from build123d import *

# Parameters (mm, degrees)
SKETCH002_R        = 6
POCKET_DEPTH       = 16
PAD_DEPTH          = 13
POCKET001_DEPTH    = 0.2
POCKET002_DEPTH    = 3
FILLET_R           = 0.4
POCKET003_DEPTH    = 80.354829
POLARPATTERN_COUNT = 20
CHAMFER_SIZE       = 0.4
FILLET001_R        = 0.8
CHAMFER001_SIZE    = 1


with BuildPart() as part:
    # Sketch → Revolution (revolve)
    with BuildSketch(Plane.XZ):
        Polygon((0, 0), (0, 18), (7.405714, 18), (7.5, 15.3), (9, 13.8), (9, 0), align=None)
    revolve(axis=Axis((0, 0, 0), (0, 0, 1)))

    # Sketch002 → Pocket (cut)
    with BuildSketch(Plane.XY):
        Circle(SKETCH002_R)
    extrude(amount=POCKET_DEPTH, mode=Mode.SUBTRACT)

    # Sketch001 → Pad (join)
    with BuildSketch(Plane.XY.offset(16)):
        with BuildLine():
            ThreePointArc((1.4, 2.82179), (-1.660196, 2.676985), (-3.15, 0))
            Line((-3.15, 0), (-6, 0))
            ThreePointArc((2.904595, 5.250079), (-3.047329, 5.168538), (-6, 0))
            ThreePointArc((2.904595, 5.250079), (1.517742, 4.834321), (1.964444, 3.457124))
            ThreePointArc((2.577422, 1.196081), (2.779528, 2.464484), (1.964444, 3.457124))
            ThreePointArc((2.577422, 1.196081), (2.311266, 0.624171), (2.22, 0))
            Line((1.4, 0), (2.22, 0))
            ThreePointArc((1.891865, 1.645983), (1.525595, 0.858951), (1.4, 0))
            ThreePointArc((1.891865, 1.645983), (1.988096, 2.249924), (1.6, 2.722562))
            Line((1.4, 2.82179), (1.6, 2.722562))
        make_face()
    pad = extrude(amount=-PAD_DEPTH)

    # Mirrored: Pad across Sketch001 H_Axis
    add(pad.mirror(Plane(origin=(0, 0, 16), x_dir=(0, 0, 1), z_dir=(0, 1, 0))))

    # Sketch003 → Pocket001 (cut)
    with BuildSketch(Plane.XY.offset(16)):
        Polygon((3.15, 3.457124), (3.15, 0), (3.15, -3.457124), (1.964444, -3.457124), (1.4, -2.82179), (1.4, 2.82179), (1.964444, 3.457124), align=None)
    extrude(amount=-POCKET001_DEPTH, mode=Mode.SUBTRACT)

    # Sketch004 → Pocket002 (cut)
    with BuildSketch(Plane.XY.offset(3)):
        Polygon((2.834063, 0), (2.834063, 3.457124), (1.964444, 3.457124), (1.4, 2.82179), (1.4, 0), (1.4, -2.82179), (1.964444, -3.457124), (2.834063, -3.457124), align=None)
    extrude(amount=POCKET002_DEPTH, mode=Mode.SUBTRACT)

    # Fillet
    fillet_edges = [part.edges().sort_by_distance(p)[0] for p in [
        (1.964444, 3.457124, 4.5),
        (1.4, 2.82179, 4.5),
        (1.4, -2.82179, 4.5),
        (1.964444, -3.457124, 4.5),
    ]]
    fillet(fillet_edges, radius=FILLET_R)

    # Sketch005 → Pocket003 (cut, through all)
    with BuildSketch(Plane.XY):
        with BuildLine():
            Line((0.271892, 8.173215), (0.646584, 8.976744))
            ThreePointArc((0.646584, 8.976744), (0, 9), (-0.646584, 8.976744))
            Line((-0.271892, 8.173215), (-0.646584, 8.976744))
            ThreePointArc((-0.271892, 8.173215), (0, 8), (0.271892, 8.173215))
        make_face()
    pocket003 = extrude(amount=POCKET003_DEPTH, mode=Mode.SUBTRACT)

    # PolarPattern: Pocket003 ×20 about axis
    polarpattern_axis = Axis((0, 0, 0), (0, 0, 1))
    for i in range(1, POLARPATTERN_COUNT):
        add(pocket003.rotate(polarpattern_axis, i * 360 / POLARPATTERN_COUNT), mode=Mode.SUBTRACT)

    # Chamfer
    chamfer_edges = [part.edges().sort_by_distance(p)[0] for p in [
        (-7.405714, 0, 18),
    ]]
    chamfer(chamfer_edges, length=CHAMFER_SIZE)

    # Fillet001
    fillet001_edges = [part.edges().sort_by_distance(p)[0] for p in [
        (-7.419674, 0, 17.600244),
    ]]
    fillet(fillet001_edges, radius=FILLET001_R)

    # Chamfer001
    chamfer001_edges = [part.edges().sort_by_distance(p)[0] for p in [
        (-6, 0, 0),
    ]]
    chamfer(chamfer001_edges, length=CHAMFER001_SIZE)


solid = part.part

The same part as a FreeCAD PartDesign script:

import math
import FreeCAD as App
import Part
import Sketcher
from FreeCAD import Vector
Q = App.Units.Quantity


def edges_at(feature, points):
    """Names of the edges that pass closest to the given points."""
    edges = feature.Shape.Edges
    near = lambda p: min(range(len(edges)), key=lambda i: edges[i].distToShape(Part.Vertex(*p))[0])
    return sorted({f"Edge{near(p) + 1}" for p in points})

doc = App.newDocument("Part")
body = doc.addObject("PartDesign::Body", "Body")

sketch1 = body.newObject("Sketcher::SketchObject", "Sketch")
sketch1.AttachmentSupport = (doc.getObject("XZ_Plane"), [""])
sketch1.MapMode = "FlatFace"
sketch1.addGeometry(Part.LineSegment(Vector(0, 18, 0), Vector(0, 0, 0)), False)
sketch1.addGeometry(Part.LineSegment(Vector(0, 0, 0), Vector(9, 0, 0)), False)
sketch1.addGeometry(Part.LineSegment(Vector(9, 0, 0), Vector(9, 13.8, 0)), False)
sketch1.addGeometry(Part.LineSegment(Vector(9, 13.8, 0), Vector(7.5, 15.3, 0)), False)
sketch1.addGeometry(Part.LineSegment(Vector(7.5, 15.3, 0), Vector(7.4, 18, 0)), False)
sketch1.addGeometry(Part.LineSegment(Vector(7.4, 18, 0), Vector(0, 18, 0)), False)
sketch1.addConstraint(Sketcher.Constraint("Coincident", 0, 2, 1, 1))
sketch1.addConstraint(Sketcher.Constraint("Coincident", 1, 2, 2, 1))
sketch1.addConstraint(Sketcher.Constraint("Coincident", 2, 2, 3, 1))
sketch1.addConstraint(Sketcher.Constraint("Coincident", 3, 2, 4, 1))
sketch1.addConstraint(Sketcher.Constraint("Coincident", 4, 2, 5, 1))
sketch1.addConstraint(Sketcher.Constraint("Coincident", 5, 2, 0, 1))
sketch1.addConstraint(Sketcher.Constraint("Vertical", 0))
sketch1.addConstraint(Sketcher.Constraint("Horizontal", 1))
sketch1.addConstraint(Sketcher.Constraint("Vertical", 2))
sketch1.addConstraint(Sketcher.Constraint("Horizontal", 5))
sketch1.addConstraint(Sketcher.Constraint("Coincident", 0, 2, -1, 1))
sketch1.addConstraint(Sketcher.Constraint("DistanceX", 1, 1, 1, 2, Q("9 mm")))
sketch1.addConstraint(Sketcher.Constraint("DistanceY", 0, 2, 0, 1, Q("18 mm")))
sketch1.addConstraint(Sketcher.Constraint("Angle", 3, Q("135 deg")))
sketch1.addConstraint(Sketcher.Constraint("Angle", 4, Q("91.999998 deg")))
sketch1.addConstraint(Sketcher.Constraint("DistanceY", 2, 1, 2, 2, Q("13.8 mm")))
sketch1.addConstraint(Sketcher.Constraint("DistanceX", -1, 1, 3, 2, Q("7.5 mm")))
revolution = body.newObject("PartDesign::Revolution", "Revolution")
revolution.Profile = sketch1
revolution.ReferenceAxis = (sketch1, ["V_Axis"])
revolution.Angle = 360

sketch2 = body.newObject("Sketcher::SketchObject", "Sketch001")
sketch2.AttachmentSupport = (doc.getObject("XY_Plane"), [""])
sketch2.MapMode = "FlatFace"
sketch2.addGeometry(Part.Circle(Vector(0, 0, 0), Vector(0, 0, 1), 6), False)
sketch2.addConstraint(Sketcher.Constraint("Coincident", 0, 3, -1, 1))
sketch2.addConstraint(Sketcher.Constraint("Diameter", 0, Q("12 mm")))
pocket1 = body.newObject("PartDesign::Pocket", "Pocket")
pocket1.Profile = sketch2
pocket1.Length = 16
pocket1.Reversed = True

sketch3 = body.newObject("Sketcher::SketchObject", "Sketch002")
sketch3.AttachmentSupport = (doc.getObject("XY_Plane"), [""])
sketch3.MapMode = "FlatFace"
sketch3.AttachmentOffset = App.Placement(Vector(0, 0, 16), App.Rotation())
sketch3.addGeometry(Part.ArcOfCircle(Part.Circle(Vector(0, 0, 0), Vector(0, 0, 1), 3.15), math.radians(64), math.radians(180)), False)
sketch3.addGeometry(Part.LineSegment(Vector(1.4, 2.82, 0), Vector(1.6, 2.72, 0)), False)
sketch3.addGeometry(Part.ArcOfCircle(Part.Circle(Vector(1.27, 2.05, 0), Vector(0, 0, 1), 0.75), math.radians(-33), math.radians(64)), False)
sketch3.addGeometry(Part.ArcOfCircle(Part.Circle(Vector(4.4, 0, 0), Vector(0, 0, 1), 3), math.radians(147), math.radians(180)), False)
sketch3.addGeometry(Part.LineSegment(Vector(1.4, 0, 0), Vector(2.22, 0, 0)), False)
sketch3.addGeometry(Part.ArcOfCircle(Part.Circle(Vector(4.4, 0, 0), Vector(0, 0, 1), 2.18), math.radians(147), math.radians(180)), False)
sketch3.addGeometry(Part.ArcOfCircle(Part.Circle(Vector(1.27, 2.05, 0), Vector(0, 0, 1), 1.57), math.radians(-33), math.radians(64)), False)
sketch3.addGeometry(Part.ArcOfCircle(Part.Circle(Vector(2.41, 4.36, 0), Vector(0, 0, 1), 1.01), math.radians(61), math.radians(244)), False)
sketch3.addGeometry(Part.ArcOfCircle(Part.Circle(Vector(0, 0, 0), Vector(0, 0, 1), 6), math.radians(61), math.radians(180)), False)
sketch3.addGeometry(Part.LineSegment(Vector(-6, 0, 0), Vector(-3.15, 0, 0)), False)
sketch3.addConstraint(Sketcher.Constraint("Tangent", 0, 1, 1, 1))
sketch3.addConstraint(Sketcher.Constraint("Tangent", 1, 2, 2, 2))
sketch3.addConstraint(Sketcher.Constraint("Tangent", 2, 1, 3, 1))
sketch3.addConstraint(Sketcher.Constraint("Coincident", 3, 2, 4, 1))
sketch3.addConstraint(Sketcher.Constraint("Coincident", 4, 2, 5, 2))
sketch3.addConstraint(Sketcher.Constraint("Tangent", 5, 1, 6, 1))
sketch3.addConstraint(Sketcher.Constraint("Tangent", 6, 2, 7, 2))
sketch3.addConstraint(Sketcher.Constraint("Tangent", 7, 1, 8, 1))
sketch3.addConstraint(Sketcher.Constraint("Coincident", 8, 2, 9, 1))
sketch3.addConstraint(Sketcher.Constraint("Coincident", 9, 2, 0, 2))
sketch3.addConstraint(Sketcher.Constraint("Horizontal", 4))
sketch3.addConstraint(Sketcher.Constraint("Horizontal", 9))
sketch3.addConstraint(Sketcher.Constraint("Coincident", 0, 3, -1, 1))
sketch3.addConstraint(Sketcher.Constraint("Coincident", 8, 3, -1, 1))
sketch3.addConstraint(Sketcher.Constraint("Coincident", 5, 3, 3, 3))
sketch3.addConstraint(Sketcher.Constraint("Coincident", 6, 3, 2, 3))
sketch3.addConstraint(Sketcher.Constraint("PointOnObject", 3, 3, -1))
sketch3.addConstraint(Sketcher.Constraint("PointOnObject", 3, 2, -1))
sketch3.addConstraint(Sketcher.Constraint("PointOnObject", 8, 2, -1))
sketch3.addConstraint(Sketcher.Constraint("Vertical", 0, 1, 3, 2))
sketch3.addConstraint(Sketcher.Constraint("Radius", 3, Q("2.999999 mm")))
sketch3.addConstraint(Sketcher.Constraint("Radius", 8, Q("6 mm")))
sketch3.addConstraint(Sketcher.Constraint("Radius", 0, Q("3.15 mm")))
sketch3.addConstraint(Sketcher.Constraint("DistanceX", 4, 1, 4, 2, Q("0.82 mm")))
sketch3.addConstraint(Sketcher.Constraint("DistanceX", -1, 1, 3, 3, Q("4.399999 mm")))
sketch3.addConstraint(Sketcher.Constraint("DistanceX", -1, 1, 1, 2, Q("1.6 mm")))
sketch3.addConstraint(Sketcher.Constraint("Radius", 7, Q("1.0125 mm")))
pad1 = body.newObject("PartDesign::Pad", "Pad")
pad1.Profile = sketch3
pad1.Length = 13
pad1.Reversed = True
doc.recompute()

mirrored = body.newObject("PartDesign::Mirrored", "Mirrored")
mirrored.Originals = [pad1]
mirrored.MirrorPlane = (doc.getObject("XZ_Plane"), [""])
body.Tip = mirrored

sketch4 = body.newObject("Sketcher::SketchObject", "Sketch003")
sketch4.AttachmentSupport = (doc.getObject("XY_Plane"), [""])
sketch4.MapMode = "FlatFace"
sketch4.AttachmentOffset = App.Placement(Vector(0, 0, 16), App.Rotation())
sketch4.addGeometry(Part.LineSegment(Vector(3.1, -3.5, 0), Vector(3.1, 3.5, 0)), False)
sketch4.addGeometry(Part.LineSegment(Vector(3.1, 3.5, 0), Vector(2, 3.5, 0)), False)
sketch4.addGeometry(Part.LineSegment(Vector(2, 3.5, 0), Vector(1.4, 2.8, 0)), False)
sketch4.addGeometry(Part.LineSegment(Vector(1.4, 2.8, 0), Vector(1.4, -2.8, 0)), False)
sketch4.addGeometry(Part.LineSegment(Vector(1.4, -2.8, 0), Vector(2, -3.5, 0)), False)
sketch4.addGeometry(Part.LineSegment(Vector(2, -3.5, 0), Vector(3.1, -3.5, 0)), False)
sketch4.addConstraint(Sketcher.Constraint("Coincident", 0, 2, 1, 1))
sketch4.addConstraint(Sketcher.Constraint("Coincident", 1, 2, 2, 1))
sketch4.addConstraint(Sketcher.Constraint("Coincident", 2, 2, 3, 1))
sketch4.addConstraint(Sketcher.Constraint("Coincident", 3, 2, 4, 1))
sketch4.addConstraint(Sketcher.Constraint("Coincident", 4, 2, 5, 1))
sketch4.addConstraint(Sketcher.Constraint("Coincident", 5, 2, 0, 1))
sketch4.addConstraint(Sketcher.Constraint("Vertical", 0))
sketch4.addConstraint(Sketcher.Constraint("Horizontal", 1))
sketch4.addConstraint(Sketcher.Constraint("Vertical", 3))
sketch4.addConstraint(Sketcher.Constraint("Horizontal", 5))
sketch4.addConstraint(Sketcher.Constraint("Symmetric", 1, 2, 4, 2, -1))
sketch4.addConstraint(Sketcher.Constraint("Equal", 2, 4))
sketch4.addConstraint(Sketcher.Constraint("DistanceX", -1, 1, 2, 2, Q("1.4 mm")))
sketch4.addConstraint(Sketcher.Constraint("DistanceX", -1, 1, 0, 2, Q("3.15 mm")))
sketch4.addConstraint(Sketcher.Constraint("DistanceY", 3, 2, 3, 1, Q("5.64358 mm")))
sketch4.addConstraint(Sketcher.Constraint("Distance", 2, Q("0.849851 mm")))
sketch4.addConstraint(Sketcher.Constraint("DistanceX", 1, 2, 1, 1, Q("1.185556 mm")))
pocket2 = body.newObject("PartDesign::Pocket", "Pocket001")
pocket2.Profile = sketch4
pocket2.Length = 0.2

sketch5 = body.newObject("Sketcher::SketchObject", "Sketch004")
sketch5.AttachmentSupport = (doc.getObject("XY_Plane"), [""])
sketch5.MapMode = "FlatFace"
sketch5.AttachmentOffset = App.Placement(Vector(0, 0, 3), App.Rotation())
sketch5.addGeometry(Part.LineSegment(Vector(2.8, 3.5, 0), Vector(2, 3.5, 0)), False)
sketch5.addGeometry(Part.LineSegment(Vector(2, 3.5, 0), Vector(1.4, 2.8, 0)), False)
sketch5.addGeometry(Part.LineSegment(Vector(1.4, 2.8, 0), Vector(1.4, -2.8, 0)), False)
sketch5.addGeometry(Part.LineSegment(Vector(1.4, -2.8, 0), Vector(2, -3.5, 0)), False)
sketch5.addGeometry(Part.LineSegment(Vector(2, -3.5, 0), Vector(2.8, -3.5, 0)), False)
sketch5.addGeometry(Part.LineSegment(Vector(2.8, -3.5, 0), Vector(2.8, 3.5, 0)), False)
sketch5.addConstraint(Sketcher.Constraint("Coincident", 0, 2, 1, 1))
sketch5.addConstraint(Sketcher.Constraint("Coincident", 1, 2, 2, 1))
sketch5.addConstraint(Sketcher.Constraint("Coincident", 2, 2, 3, 1))
sketch5.addConstraint(Sketcher.Constraint("Coincident", 3, 2, 4, 1))
sketch5.addConstraint(Sketcher.Constraint("Coincident", 4, 2, 5, 1))
sketch5.addConstraint(Sketcher.Constraint("Coincident", 5, 2, 0, 1))
sketch5.addConstraint(Sketcher.Constraint("Horizontal", 0))
sketch5.addConstraint(Sketcher.Constraint("Vertical", 2))
sketch5.addConstraint(Sketcher.Constraint("Horizontal", 4))
sketch5.addConstraint(Sketcher.Constraint("Vertical", 5))
sketch5.addConstraint(Sketcher.Constraint("Symmetric", 0, 2, 3, 2, -1))
sketch5.addConstraint(Sketcher.Constraint("Equal", 1, 3))
sketch5.addConstraint(Sketcher.Constraint("DistanceX", -1, 1, 1, 2, Q("1.4 mm")))
sketch5.addConstraint(Sketcher.Constraint("DistanceX", 0, 2, 0, 1, Q("0.869619 mm")))
sketch5.addConstraint(Sketcher.Constraint("DistanceY", 2, 2, 2, 1, Q("5.64358 mm")))
sketch5.addConstraint(Sketcher.Constraint("Distance", 1, Q("0.849851 mm")))
sketch5.addConstraint(Sketcher.Constraint("DistanceY", 5, 1, 5, 2, Q("6.914248 mm")))
pocket3 = body.newObject("PartDesign::Pocket", "Pocket002")
pocket3.Profile = sketch5
pocket3.Length = 3
pocket3.Reversed = True
doc.recompute()

fillet = body.newObject("PartDesign::Fillet", "Fillet")
fillet.Base = (pocket3, edges_at(pocket3, [
    (1.964, 3.457, 4.5),
    (1.4, 2.822, 4.5),
    (1.4, -2.822, 4.5),
    (1.964, -3.457, 4.5),
]))
fillet.Radius = 0.4

sketch6 = body.newObject("Sketcher::SketchObject", "Sketch005")
sketch6.AttachmentSupport = (doc.getObject("XY_Plane"), [""])
sketch6.MapMode = "FlatFace"
sketch6.addGeometry(Part.LineSegment(Vector(0.27, 8.17, 0), Vector(0.65, 8.98, 0)), False)
sketch6.addGeometry(Part.ArcOfCircle(Part.Circle(Vector(0, 0, 0), Vector(0, 0, 1), 9), math.radians(85.88), math.radians(94.12)), False)
sketch6.addGeometry(Part.LineSegment(Vector(-0.65, 8.98, 0), Vector(-0.27, 8.17, 0)), False)
sketch6.addGeometry(Part.ArcOfCircle(Part.Circle(Vector(0, 8.3, 0), Vector(0, 0, 1), 0.3), math.radians(-155), math.radians(-25)), False)
sketch6.addConstraint(Sketcher.Constraint("Coincident", 0, 2, 1, 1))
sketch6.addConstraint(Sketcher.Constraint("Coincident", 1, 2, 2, 1))
sketch6.addConstraint(Sketcher.Constraint("Coincident", 2, 2, 3, 1))
sketch6.addConstraint(Sketcher.Constraint("Coincident", 3, 2, 0, 1))
sketch6.addConstraint(Sketcher.Constraint("Symmetric", 0, 2, 1, 2, -2))
sketch6.addConstraint(Sketcher.Constraint("Symmetric", 2, 2, 3, 2, -2))
sketch6.addConstraint(Sketcher.Constraint("Radius", 3, Q("0.299999 mm")))
sketch6.addConstraint(Sketcher.Constraint("Angle", 0, Q("64.999984 deg")))
sketch6.addConstraint(Sketcher.Constraint("DistanceY", -1, 1, 3, 3, Q("8.299999 mm")))
sketch6.addConstraint(Sketcher.Constraint("Radius", 1, Q("9.00008 mm")))
sketch6.addConstraint(Sketcher.Constraint("DistanceX", -1, 1, 3, 2, Q("0.271892 mm")))
sketch6.addConstraint(Sketcher.Constraint("DistanceY", 1, 3, 3, 3, Q("8.300079 mm")))
pocket4 = body.newObject("PartDesign::Pocket", "Pocket003")
pocket4.Profile = sketch6
pocket4.Type = "ThroughAll"
pocket4.Reversed = True
doc.recompute()

polarpattern = body.newObject("PartDesign::PolarPattern", "PolarPattern")
polarpattern.Originals = [pocket4]
polarpattern.Axis = (doc.getObject("Z_Axis"), [""])
polarpattern.Angle = 360
polarpattern.Occurrences = 20
body.Tip = polarpattern
doc.recompute()

chamfer = body.newObject("PartDesign::Chamfer", "Chamfer")
chamfer.Base = (polarpattern, edges_at(polarpattern, [(-7.406, 0, 18)]))
chamfer.Size = 0.4
doc.recompute()

fillet2 = body.newObject("PartDesign::Fillet", "Fillet001")
fillet2.Base = (chamfer, edges_at(chamfer, [(-7.42, 0, 17.6)]))
fillet2.Radius = 0.8
doc.recompute()

chamfer2 = body.newObject("PartDesign::Chamfer", "Chamfer001")
chamfer2.Base = (fillet2, edges_at(fillet2, [(-6, 0, 0)]))
chamfer2.Size = 1

doc.recompute()
